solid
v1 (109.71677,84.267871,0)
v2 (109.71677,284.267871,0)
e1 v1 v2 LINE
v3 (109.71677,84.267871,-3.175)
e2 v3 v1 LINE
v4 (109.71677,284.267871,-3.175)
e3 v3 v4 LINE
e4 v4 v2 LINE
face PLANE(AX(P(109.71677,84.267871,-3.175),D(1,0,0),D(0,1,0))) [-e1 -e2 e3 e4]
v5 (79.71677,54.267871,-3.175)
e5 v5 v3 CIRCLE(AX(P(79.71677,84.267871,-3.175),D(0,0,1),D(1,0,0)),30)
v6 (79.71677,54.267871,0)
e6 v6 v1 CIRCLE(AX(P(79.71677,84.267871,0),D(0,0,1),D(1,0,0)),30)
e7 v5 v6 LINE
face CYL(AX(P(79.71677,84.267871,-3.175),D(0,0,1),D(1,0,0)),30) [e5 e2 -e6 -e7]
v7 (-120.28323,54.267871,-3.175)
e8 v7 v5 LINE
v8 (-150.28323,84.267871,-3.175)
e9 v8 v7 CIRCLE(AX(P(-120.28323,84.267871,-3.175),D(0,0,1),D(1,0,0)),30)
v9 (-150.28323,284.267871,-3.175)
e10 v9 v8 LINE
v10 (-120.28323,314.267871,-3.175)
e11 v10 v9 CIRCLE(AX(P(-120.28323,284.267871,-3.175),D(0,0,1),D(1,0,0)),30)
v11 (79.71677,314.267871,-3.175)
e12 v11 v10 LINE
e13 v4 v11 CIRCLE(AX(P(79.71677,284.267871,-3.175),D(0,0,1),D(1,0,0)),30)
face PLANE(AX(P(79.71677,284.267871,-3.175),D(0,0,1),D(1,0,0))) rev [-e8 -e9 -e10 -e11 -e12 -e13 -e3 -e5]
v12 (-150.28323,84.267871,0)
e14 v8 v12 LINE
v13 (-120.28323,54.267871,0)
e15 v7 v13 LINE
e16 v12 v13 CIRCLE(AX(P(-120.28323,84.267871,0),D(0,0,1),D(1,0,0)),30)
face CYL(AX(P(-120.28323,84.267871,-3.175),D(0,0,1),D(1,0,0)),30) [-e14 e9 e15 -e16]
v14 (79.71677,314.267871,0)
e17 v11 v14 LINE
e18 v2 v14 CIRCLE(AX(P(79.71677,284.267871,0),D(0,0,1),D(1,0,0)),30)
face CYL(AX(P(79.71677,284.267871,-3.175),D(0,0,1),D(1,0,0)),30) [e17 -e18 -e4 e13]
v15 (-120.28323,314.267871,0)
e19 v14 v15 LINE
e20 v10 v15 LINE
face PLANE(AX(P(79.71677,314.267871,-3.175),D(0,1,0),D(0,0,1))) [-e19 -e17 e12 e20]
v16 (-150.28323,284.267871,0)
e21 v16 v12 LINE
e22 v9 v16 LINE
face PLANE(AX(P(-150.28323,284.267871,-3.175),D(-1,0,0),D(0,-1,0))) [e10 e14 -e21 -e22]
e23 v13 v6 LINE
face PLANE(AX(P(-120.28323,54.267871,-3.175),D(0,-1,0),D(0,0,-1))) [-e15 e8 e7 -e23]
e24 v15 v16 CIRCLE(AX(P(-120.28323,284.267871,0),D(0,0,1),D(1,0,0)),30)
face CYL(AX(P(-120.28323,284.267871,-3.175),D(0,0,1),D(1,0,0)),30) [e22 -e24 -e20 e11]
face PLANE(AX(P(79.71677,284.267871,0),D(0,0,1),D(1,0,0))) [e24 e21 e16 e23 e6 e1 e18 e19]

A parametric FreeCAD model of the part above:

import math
import FreeCAD as App
import Part
import Sketcher
from FreeCAD import Vector
Q = App.Units.Quantity

doc = App.newDocument("Part")
body = doc.addObject("PartDesign::Body", "Body")

sketch1 = body.newObject("Sketcher::SketchObject", "Sketch")
sketch1.AttachmentSupport = (doc.getObject("XY_Plane"), [""])
sketch1.MapMode = "FlatFace"
sketch1.addGeometry(Part.LineSegment(Vector(79.71677, 314.267871, 0), Vector(-120.28323, 314.267871, 0)), False)
sketch1.addGeometry(Part.ArcOfCircle(Part.Circle(Vector(-120.28323, 284.267871, 0), Vector(0, 0, 1), 30), math.radians(90), math.radians(180)), False)
sketch1.addGeometry(Part.LineSegment(Vector(-150.28323, 284.267871, 0), Vector(-150.28323, 84.267871, 0)), False)
sketch1.addGeometry(Part.ArcOfCircle(Part.Circle(Vector(-120.28323, 84.267871, 0), Vector(0, 0, 1), 30), math.radians(-180), math.radians(-90)), False)
sketch1.addGeometry(Part.LineSegment(Vector(-120.28323, 54.267871, 0), Vector(79.71677, 54.267871, 0)), False)
sketch1.addGeometry(Part.ArcOfCircle(Part.Circle(Vector(79.71677, 84.267871, 0), Vector(0, 0, 1), 30), math.radians(-90), math.radians(0)), False)
sketch1.addGeometry(Part.LineSegment(Vector(109.71677, 84.267871, 0), Vector(109.71677, 284.267871, 0)), False)
sketch1.addGeometry(Part.ArcOfCircle(Part.Circle(Vector(79.71677, 284.267871, 0), Vector(0, 0, 1), 30), math.radians(0), math.radians(90)), False)
sketch1.addConstraint(Sketcher.Constraint("Tangent", 0, 2, 1, 1))
sketch1.addConstraint(Sketcher.Constraint("Tangent", 1, 2, 2, 1))
sketch1.addConstraint(Sketcher.Constraint("Tangent", 2, 2, 3, 1))
sketch1.addConstraint(Sketcher.Constraint("Tangent", 3, 2, 4, 1))
sketch1.addConstraint(Sketcher.Constraint("Tangent", 4, 2, 5, 1))
sketch1.addConstraint(Sketcher.Constraint("Tangent", 5, 2, 6, 1))
sketch1.addConstraint(Sketcher.Constraint("Tangent", 6, 2, 7, 1))
sketch1.addConstraint(Sketcher.Constraint("Tangent", 7, 2, 0, 1))
sketch1.addConstraint(Sketcher.Constraint("Horizontal", 0))
sketch1.addConstraint(Sketcher.Constraint("Vertical", 2))
sketch1.addConstraint(Sketcher.Constraint("Horizontal", 4))
sketch1.addConstraint(Sketcher.Constraint("Vertical", 6))
sketch1.addConstraint(Sketcher.Constraint("Equal", 1, 3))
sketch1.addConstraint(Sketcher.Constraint("Equal", 3, 5))
sketch1.addConstraint(Sketcher.Constraint("Equal", 5, 7))
sketch1.addConstraint(Sketcher.Constraint("Equal", 4, 2))
sketch1.addConstraint(Sketcher.Constraint("Radius", 1, Q("30 mm")))
sketch1.addConstraint(Sketcher.Constraint("DistanceX", 0, 2, 0, 1, Q("200 mm")))
sketch1.addConstraint(Sketcher.Constraint("DistanceX", 1, 3, -1, 1, Q("120.28323 mm")))
sketch1.addConstraint(Sketcher.Constraint("DistanceY", -1, 1, 1, 3, Q("284.267871 mm")))
pad1 = body.newObject("PartDesign::Pad", "Pad")
pad1.Profile = sketch1
pad1.Length = 3.175
pad1.Reversed = True

doc.recompute()
